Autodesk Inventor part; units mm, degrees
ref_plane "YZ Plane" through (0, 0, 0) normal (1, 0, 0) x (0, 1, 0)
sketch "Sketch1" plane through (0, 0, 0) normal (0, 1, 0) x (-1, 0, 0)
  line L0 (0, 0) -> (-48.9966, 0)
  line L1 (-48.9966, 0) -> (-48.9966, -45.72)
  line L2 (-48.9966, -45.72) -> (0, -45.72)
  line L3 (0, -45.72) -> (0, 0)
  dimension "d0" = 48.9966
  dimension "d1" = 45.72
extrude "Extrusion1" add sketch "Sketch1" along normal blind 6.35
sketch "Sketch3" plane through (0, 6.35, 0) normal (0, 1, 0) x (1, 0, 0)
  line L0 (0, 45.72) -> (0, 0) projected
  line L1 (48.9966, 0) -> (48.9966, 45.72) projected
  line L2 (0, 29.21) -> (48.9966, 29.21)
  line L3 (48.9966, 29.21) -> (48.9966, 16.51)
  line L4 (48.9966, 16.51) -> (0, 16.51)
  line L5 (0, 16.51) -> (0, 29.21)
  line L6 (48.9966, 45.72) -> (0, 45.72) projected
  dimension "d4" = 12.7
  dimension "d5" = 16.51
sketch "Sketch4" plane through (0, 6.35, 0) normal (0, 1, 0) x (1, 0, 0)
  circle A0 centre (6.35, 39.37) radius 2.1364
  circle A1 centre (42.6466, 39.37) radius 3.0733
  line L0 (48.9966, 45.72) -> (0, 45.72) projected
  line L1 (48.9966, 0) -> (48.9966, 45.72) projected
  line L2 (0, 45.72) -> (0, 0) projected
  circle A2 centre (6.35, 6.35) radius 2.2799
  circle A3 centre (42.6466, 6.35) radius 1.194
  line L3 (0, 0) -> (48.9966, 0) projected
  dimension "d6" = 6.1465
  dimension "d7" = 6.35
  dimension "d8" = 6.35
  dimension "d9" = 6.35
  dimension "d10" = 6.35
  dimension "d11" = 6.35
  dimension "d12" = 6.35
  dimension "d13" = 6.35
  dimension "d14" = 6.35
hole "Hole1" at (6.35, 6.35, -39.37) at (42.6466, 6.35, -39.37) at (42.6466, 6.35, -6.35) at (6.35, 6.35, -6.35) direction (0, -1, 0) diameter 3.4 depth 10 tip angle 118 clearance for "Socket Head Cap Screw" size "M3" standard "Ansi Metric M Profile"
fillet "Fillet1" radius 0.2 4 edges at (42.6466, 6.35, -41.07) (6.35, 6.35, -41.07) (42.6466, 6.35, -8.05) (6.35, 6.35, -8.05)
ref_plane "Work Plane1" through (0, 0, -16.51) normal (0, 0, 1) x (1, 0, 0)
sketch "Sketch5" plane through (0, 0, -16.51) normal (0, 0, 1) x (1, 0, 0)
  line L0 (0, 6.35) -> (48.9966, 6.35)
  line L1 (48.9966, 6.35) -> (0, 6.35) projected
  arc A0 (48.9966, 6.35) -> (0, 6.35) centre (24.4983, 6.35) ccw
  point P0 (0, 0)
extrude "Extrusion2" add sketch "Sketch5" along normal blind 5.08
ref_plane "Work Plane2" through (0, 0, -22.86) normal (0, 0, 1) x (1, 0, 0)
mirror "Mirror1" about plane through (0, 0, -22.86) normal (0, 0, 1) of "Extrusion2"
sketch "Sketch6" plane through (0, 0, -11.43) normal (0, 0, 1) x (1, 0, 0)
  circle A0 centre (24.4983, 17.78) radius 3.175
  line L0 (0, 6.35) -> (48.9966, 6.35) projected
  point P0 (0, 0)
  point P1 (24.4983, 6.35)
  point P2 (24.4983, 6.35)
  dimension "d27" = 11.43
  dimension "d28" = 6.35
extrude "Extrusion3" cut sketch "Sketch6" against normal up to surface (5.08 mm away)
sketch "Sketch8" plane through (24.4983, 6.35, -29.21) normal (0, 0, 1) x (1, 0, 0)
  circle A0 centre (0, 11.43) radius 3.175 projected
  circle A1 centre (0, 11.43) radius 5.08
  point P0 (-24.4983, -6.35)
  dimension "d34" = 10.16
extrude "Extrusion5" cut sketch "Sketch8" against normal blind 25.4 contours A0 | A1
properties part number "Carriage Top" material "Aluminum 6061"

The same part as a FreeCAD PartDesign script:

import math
import FreeCAD as App
import Part
import Sketcher
Q = App.Units.Quantity


def edges_at(feature, points):
    """Names of the edges that pass closest to the given points."""
    edges = feature.Shape.Edges
    near = lambda p: min(range(len(edges)), key=lambda i: edges[i].distToShape(Part.Vertex(*p))[0])
    return sorted({f"Edge{near(p) + 1}" for p in points})


def add_polygon(sketch, points):
    """Adds a closed chain of lines whose ends are joined by coincident constraints."""
    first, n = sketch.GeometryCount, len(points)
    for a, b in zip(points, points[1:] + points[:1]):
        sketch.addGeometry(Part.LineSegment(App.Vector(*a, 0), App.Vector(*b, 0)), False)
    for i in range(n):
        sketch.addConstraint(Sketcher.Constraint("Coincident", first + i, 2, first + (i + 1) % n, 1))

doc = App.newDocument("Part")
params = doc.addObject("Spreadsheet::Sheet", "Params")
for row, (alias, value) in enumerate([
    ("sketch1_height", "1.8 in"),
    ("sketch1_width", "1.929 in"),
    ("pad1_length", "0.25 in"),
    ("hole_diameter", "3.4 mm"),
    ("hole_depth", "0.3937008 in"),
    ("fillet_radius", "0.2 mm"),
    ("pad2_length", "0.2 in"),
    ("sketch4_diameter", "0.25 in"),
    ("pocket1_length", "0.2 in"),
    ("sketch5_diameter", "0.4 in"),
    ("pocket2_length", "1 in"),
], start=1):
    params.set(f"A{row}", alias)
    params.set(f"B{row}", "=" + value)
    params.setAlias(f"B{row}", alias)

body = doc.addObject("PartDesign::Body", "Body")

# Sketch on XZ plane
sketch1 = body.newObject("Sketcher::SketchObject", "Sketch")
sketch1.AttachmentSupport = (doc.getObject("XZ_Plane"), [""])
sketch1.MapMode = "FlatFace"
add_polygon(sketch1, [(0, -46), (0, 0), (49, 0), (49, -46)])  # lines 0-3
sketch1.addConstraint([
    Sketcher.Constraint("Vertical", 0),
    Sketcher.Constraint("Horizontal", 1),
    Sketcher.Constraint("Vertical", 2),
    Sketcher.Constraint("Horizontal", 3),
    Sketcher.Constraint("Coincident", 0, 2, -1, 1),
    Sketcher.Constraint("DistanceY", 0, 1, 0, 2, Q("1.8 in")),
    Sketcher.Constraint("DistanceX", 1, 1, 1, 2, Q("1.929 in")),
])
sketch1.setExpression("Constraints[9]", "Params.sketch1_height")
sketch1.setExpression("Constraints[10]", "Params.sketch1_width")
pad1 = body.newObject("PartDesign::Pad", "Pad")
pad1.Profile = sketch1
pad1.setExpression("Length", "Params.pad1_length")
pad1.Reversed = True

# Sketch on XZ plane
sketch2 = body.newObject("Sketcher::SketchObject", "Sketch001")
sketch2.AttachmentSupport = (doc.getObject("XZ_Plane"), [""])
sketch2.MapMode = "FlatFace"
sketch2.AttachmentOffset = App.Placement(App.Vector(0, 0, -0.25 * 25.4), App.Rotation())
sketch2.addGeometry([
    Part.Circle(App.Vector(6.3, -39.4, 0), App.Vector(0, 0, 1), 1.7),
    Part.Circle(App.Vector(42.6, -39.4, 0), App.Vector(0, 0, 1), 1.7),
    Part.Circle(App.Vector(42.6, -6.3, 0), App.Vector(0, 0, 1), 1.7),
    Part.Circle(App.Vector(6.3, -6.3, 0), App.Vector(0, 0, 1), 1.7),
], False)
sketch2.addConstraint([
    Sketcher.Constraint("Equal", 0, 1),
    Sketcher.Constraint("Equal", 1, 2),
    Sketcher.Constraint("Equal", 2, 3),
    Sketcher.Constraint("Horizontal", 0, 3, 1, 3),
    Sketcher.Constraint("Horizontal", 2, 3, 3, 3),
    Sketcher.Constraint("Vertical", 1, 3, 2, 3),
    Sketcher.Constraint("Vertical", 0, 3, 3, 3),
    Sketcher.Constraint("DistanceY", 1, 3, 2, 3, Q("1.3 in")),
    Sketcher.Constraint("Diameter", 0, Q("3.4 mm")),
    Sketcher.Constraint("DistanceX", -1, 1, 0, 3, Q("0.25 in")),
    Sketcher.Constraint("DistanceY", 0, 3, -1, 1, Q("1.55 in")),
    Sketcher.Constraint("DistanceX", -1, 1, 1, 3, Q("1.679 in")),
])
doc.recompute()
hole = body.newObject("PartDesign::Hole", "Hole")
hole.Profile = sketch2
hole.ThreadType = "None"
hole.setExpression("Diameter", "Params.hole_diameter")
hole.DepthType = "Dimension"
hole.setExpression("Depth", "Params.hole_depth")
hole.DrillPoint = "Angled"
hole.DrillPointAngle = 118
hole.Reversed = True
doc.recompute()

fillet = body.newObject("PartDesign::Fillet", "Fillet")
fillet.Base = (hole, edges_at(hole, [
    (42.647, 6.35, -41.07),
    (6.35, 6.35, -41.07),
    (42.647, 6.35, -8.05),
    (6.35, 6.35, -8.05),
]))
fillet.setExpression("Radius", "Params.fillet_radius")

# Sketch on XY plane
sketch3 = body.newObject("Sketcher::SketchObject", "Sketch002")
sketch3.AttachmentSupport = (doc.getObject("XY_Plane"), [""])
sketch3.MapMode = "FlatFace"
sketch3.AttachmentOffset = App.Placement(App.Vector(0, 0, -0.65 * 25.4), App.Rotation())
sketch3.addGeometry([
    Part.ArcOfCircle(Part.Circle(App.Vector(24, 6, 0), App.Vector(0, 0, 1), 24), math.radians(0), math.radians(180)),
    Part.LineSegment(App.Vector(0, 6, 0), App.Vector(49, 6, 0)),
], False)
sketch3.addConstraint([
    Sketcher.Constraint("Coincident", 0, 1, 1, 2),
    Sketcher.Constraint("Coincident", 1, 1, 0, 2),
    Sketcher.Constraint("Horizontal", 1),
    Sketcher.Constraint("PointOnObject", 1, 1, -2),
    Sketcher.Constraint("Radius", 0, Q("0.9645 in")),
    Sketcher.Constraint("DistanceY", -1, 1, 0, 3, Q("0.25 in")),
    Sketcher.Constraint("DistanceY", -1, 1, 0, 1, Q("0.25 in")),
])
pad2 = body.newObject("PartDesign::Pad", "Pad001")
pad2.Profile = sketch3
pad2.setExpression("Length", "Params.pad2_length")
doc.recompute()

datumplane = body.newObject("PartDesign::Plane", "DatumPlane")
datumplane.AttachmentSupport = (doc.getObject("XY_Plane"), [""])
datumplane.MapMode = "FlatFace"
datumplane.AttachmentOffset = App.Placement(App.Vector(0, 0, -0.9 * 25.4), App.Rotation())
mirrored = body.newObject("PartDesign::Mirrored", "Mirrored")
mirrored.Originals = [pad2]
mirrored.MirrorPlane = (datumplane, [""])
body.Tip = mirrored

# Sketch on XY plane
sketch4 = body.newObject("Sketcher::SketchObject", "Sketch003")
sketch4.AttachmentSupport = (doc.getObject("XY_Plane"), [""])
sketch4.MapMode = "FlatFace"
sketch4.AttachmentOffset = App.Placement(App.Vector(0, 0, -0.45 * 25.4), App.Rotation())
sketch4.addGeometry(Part.Circle(App.Vector(24.5, 17.8, 0), App.Vector(0, 0, 1), 3.2), False)
sketch4.addConstraint([
    Sketcher.Constraint("Diameter", 0, Q("0.25 in")),
    Sketcher.Constraint("DistanceY", -1, 1, 0, 3, Q("0.7 in")),
    Sketcher.Constraint("DistanceX", -1, 1, 0, 3, Q("0.9645 in")),
])
sketch4.setExpression("Constraints[0]", "Params.sketch4_diameter")
pocket1 = body.newObject("PartDesign::Pocket", "Pocket")
pocket1.Profile = sketch4
pocket1.setExpression("Length", "Params.pocket1_length")

# Sketch on XY plane
sketch5 = body.newObject("Sketcher::SketchObject", "Sketch004")
sketch5.AttachmentSupport = (doc.getObject("XY_Plane"), [""])
sketch5.MapMode = "FlatFace"
sketch5.AttachmentOffset = App.Placement(App.Vector(0, 0, -1.15 * 25.4), App.Rotation())
sketch5.addGeometry(Part.Circle(App.Vector(24, 18, 0), App.Vector(0, 0, 1), 5), False)
sketch5.addConstraint([
    Sketcher.Constraint("Diameter", 0, Q("0.4 in")),
    Sketcher.Constraint("DistanceY", -1, 1, 0, 3, Q("0.7 in")),
    Sketcher.Constraint("DistanceX", -1, 1, 0, 3, Q("0.9645 in")),
])
sketch5.setExpression("Constraints[0]", "Params.sketch5_diameter")
pocket2 = body.newObject("PartDesign::Pocket", "Pocket001")
pocket2.Profile = sketch5
pocket2.setExpression("Length", "Params.pocket2_length")

doc.recompute()
